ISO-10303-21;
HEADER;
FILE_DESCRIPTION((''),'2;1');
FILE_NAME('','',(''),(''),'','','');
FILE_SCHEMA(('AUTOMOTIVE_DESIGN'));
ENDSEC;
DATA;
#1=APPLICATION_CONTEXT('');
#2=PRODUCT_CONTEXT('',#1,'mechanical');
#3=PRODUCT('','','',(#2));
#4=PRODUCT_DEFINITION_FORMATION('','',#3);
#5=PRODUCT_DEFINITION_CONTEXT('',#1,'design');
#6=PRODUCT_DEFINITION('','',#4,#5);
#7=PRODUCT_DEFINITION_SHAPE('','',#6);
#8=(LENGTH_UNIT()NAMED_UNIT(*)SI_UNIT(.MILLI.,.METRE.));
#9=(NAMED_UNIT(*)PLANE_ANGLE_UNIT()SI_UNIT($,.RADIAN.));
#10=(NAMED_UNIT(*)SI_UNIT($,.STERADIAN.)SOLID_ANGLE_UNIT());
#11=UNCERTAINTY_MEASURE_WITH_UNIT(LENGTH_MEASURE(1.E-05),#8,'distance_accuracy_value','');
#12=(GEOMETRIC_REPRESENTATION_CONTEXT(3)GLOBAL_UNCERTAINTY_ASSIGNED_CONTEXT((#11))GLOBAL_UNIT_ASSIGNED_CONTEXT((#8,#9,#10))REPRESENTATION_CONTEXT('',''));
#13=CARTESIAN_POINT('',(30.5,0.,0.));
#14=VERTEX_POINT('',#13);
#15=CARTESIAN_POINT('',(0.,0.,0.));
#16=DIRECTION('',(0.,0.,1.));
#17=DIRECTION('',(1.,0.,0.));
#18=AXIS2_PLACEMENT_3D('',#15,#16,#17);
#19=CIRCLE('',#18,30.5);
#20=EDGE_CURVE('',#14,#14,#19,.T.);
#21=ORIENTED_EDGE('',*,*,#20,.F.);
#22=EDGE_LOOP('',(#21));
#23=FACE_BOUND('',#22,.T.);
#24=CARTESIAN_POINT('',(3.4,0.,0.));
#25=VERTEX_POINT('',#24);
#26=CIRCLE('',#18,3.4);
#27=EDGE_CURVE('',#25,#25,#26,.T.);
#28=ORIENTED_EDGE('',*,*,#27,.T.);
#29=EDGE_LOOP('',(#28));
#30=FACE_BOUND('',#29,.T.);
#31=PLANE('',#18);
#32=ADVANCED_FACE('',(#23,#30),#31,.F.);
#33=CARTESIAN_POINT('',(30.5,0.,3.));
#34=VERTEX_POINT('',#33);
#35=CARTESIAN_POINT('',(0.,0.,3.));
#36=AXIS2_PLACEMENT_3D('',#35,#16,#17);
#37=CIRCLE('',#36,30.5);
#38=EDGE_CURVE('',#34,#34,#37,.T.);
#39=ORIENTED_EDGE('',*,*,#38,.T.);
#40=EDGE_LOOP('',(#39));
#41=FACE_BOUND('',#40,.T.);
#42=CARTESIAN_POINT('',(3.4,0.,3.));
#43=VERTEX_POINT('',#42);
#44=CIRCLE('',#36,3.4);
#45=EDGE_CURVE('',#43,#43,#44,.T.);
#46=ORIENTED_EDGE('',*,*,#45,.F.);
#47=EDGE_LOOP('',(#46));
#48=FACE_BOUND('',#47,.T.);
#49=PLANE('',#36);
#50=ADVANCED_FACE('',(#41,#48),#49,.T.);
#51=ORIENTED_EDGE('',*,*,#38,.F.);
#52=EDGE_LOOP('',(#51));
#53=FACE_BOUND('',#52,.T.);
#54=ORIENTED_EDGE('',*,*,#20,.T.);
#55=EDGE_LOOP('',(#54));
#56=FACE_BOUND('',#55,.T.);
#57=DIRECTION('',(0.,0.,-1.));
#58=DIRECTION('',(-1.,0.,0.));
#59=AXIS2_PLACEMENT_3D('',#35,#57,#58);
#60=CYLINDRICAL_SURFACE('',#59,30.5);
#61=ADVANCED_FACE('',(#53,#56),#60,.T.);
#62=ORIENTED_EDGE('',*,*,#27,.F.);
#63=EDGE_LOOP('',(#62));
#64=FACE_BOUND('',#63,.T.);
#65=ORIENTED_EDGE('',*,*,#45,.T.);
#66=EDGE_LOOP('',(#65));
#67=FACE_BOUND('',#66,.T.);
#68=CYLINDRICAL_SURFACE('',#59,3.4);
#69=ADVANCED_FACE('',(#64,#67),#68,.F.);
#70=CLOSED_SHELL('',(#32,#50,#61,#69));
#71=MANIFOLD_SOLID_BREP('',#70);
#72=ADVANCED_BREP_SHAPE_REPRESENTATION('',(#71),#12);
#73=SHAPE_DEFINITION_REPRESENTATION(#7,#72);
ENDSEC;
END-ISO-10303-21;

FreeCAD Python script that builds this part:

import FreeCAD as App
import Part
import Sketcher
from FreeCAD import Vector
Q = App.Units.Quantity

doc = App.newDocument("Part")
params = doc.addObject("Spreadsheet::Sheet", "Params")
for row, (alias, value) in enumerate([
    ("sketch1_diameter", "61 mm"),
    ("sketch1_diameter2", "6.8 mm"),
    ("pad1_length", "3 mm"),
], start=1):
    params.set(f"A{row}", alias)
    params.set(f"B{row}", "=" + value)
    params.setAlias(f"B{row}", alias)

body = doc.addObject("PartDesign::Body", "Body")

sketch1 = body.newObject("Sketcher::SketchObject", "Sketch")
sketch1.AttachmentSupport = (doc.getObject("XY_Plane"), [""])
sketch1.MapMode = "FlatFace"
sketch1.addGeometry([
    Part.Circle(Vector(0, 0, 0), Vector(0, 0, 1), 30.5),
    Part.Circle(Vector(0, 0, 0), Vector(0, 0, 1), 3.4),
], False)
sketch1.addConstraint([
    Sketcher.Constraint("Coincident", 0, 3, -1, 1),
    Sketcher.Constraint("Coincident", 1, 3, -1, 1),
    Sketcher.Constraint("Diameter", 0, Q("61 mm")),
    Sketcher.Constraint("Diameter", 1, Q("6.8 mm")),
])
sketch1.setExpression("Constraints[2]", "Params.sketch1_diameter")
sketch1.setExpression("Constraints[3]", "Params.sketch1_diameter2")
pad1 = body.newObject("PartDesign::Pad", "Pad")
pad1.Profile = sketch1
pad1.setExpression("Length", "Params.pad1_length")

doc.recompute()
